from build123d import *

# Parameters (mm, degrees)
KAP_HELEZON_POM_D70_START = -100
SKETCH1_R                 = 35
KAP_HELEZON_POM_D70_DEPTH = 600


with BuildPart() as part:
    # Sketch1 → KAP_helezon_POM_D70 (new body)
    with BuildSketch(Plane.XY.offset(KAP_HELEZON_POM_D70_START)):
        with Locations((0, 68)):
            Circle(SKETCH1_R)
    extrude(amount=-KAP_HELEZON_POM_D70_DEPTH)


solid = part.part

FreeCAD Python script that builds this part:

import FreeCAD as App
import Part
import Sketcher

V = App.Vector
Q = App.Units.Quantity

doc = App.newDocument("Part")
body = doc.addObject("PartDesign::Body", "Body")

# Sketch on XY plane
sketch1 = body.newObject("Sketcher::SketchObject", "Sketch")
sketch1.AttachmentSupport = (doc.getObject("XY_Plane"), [""])
sketch1.MapMode = "FlatFace"
sketch1.AttachmentOffset = App.Placement(V(0, 0, -100), App.Rotation())
sketch1.addGeometry(Part.Circle(V(0, 68, 0), V(0, 0, 1), 35), False)
sketch1.addConstraint([
    Sketcher.Constraint("PointOnObject", 0, 3, -2),
    Sketcher.Constraint("Diameter", 0, Q("70 mm")),
    Sketcher.Constraint("DistanceY", -1, 1, 0, 3, Q("68 mm")),
])
pad1 = body.newObject("PartDesign::Pad", "Pad")
pad1.Profile = sketch1
pad1.Length = 600
pad1.Reversed = True

doc.recompute()
